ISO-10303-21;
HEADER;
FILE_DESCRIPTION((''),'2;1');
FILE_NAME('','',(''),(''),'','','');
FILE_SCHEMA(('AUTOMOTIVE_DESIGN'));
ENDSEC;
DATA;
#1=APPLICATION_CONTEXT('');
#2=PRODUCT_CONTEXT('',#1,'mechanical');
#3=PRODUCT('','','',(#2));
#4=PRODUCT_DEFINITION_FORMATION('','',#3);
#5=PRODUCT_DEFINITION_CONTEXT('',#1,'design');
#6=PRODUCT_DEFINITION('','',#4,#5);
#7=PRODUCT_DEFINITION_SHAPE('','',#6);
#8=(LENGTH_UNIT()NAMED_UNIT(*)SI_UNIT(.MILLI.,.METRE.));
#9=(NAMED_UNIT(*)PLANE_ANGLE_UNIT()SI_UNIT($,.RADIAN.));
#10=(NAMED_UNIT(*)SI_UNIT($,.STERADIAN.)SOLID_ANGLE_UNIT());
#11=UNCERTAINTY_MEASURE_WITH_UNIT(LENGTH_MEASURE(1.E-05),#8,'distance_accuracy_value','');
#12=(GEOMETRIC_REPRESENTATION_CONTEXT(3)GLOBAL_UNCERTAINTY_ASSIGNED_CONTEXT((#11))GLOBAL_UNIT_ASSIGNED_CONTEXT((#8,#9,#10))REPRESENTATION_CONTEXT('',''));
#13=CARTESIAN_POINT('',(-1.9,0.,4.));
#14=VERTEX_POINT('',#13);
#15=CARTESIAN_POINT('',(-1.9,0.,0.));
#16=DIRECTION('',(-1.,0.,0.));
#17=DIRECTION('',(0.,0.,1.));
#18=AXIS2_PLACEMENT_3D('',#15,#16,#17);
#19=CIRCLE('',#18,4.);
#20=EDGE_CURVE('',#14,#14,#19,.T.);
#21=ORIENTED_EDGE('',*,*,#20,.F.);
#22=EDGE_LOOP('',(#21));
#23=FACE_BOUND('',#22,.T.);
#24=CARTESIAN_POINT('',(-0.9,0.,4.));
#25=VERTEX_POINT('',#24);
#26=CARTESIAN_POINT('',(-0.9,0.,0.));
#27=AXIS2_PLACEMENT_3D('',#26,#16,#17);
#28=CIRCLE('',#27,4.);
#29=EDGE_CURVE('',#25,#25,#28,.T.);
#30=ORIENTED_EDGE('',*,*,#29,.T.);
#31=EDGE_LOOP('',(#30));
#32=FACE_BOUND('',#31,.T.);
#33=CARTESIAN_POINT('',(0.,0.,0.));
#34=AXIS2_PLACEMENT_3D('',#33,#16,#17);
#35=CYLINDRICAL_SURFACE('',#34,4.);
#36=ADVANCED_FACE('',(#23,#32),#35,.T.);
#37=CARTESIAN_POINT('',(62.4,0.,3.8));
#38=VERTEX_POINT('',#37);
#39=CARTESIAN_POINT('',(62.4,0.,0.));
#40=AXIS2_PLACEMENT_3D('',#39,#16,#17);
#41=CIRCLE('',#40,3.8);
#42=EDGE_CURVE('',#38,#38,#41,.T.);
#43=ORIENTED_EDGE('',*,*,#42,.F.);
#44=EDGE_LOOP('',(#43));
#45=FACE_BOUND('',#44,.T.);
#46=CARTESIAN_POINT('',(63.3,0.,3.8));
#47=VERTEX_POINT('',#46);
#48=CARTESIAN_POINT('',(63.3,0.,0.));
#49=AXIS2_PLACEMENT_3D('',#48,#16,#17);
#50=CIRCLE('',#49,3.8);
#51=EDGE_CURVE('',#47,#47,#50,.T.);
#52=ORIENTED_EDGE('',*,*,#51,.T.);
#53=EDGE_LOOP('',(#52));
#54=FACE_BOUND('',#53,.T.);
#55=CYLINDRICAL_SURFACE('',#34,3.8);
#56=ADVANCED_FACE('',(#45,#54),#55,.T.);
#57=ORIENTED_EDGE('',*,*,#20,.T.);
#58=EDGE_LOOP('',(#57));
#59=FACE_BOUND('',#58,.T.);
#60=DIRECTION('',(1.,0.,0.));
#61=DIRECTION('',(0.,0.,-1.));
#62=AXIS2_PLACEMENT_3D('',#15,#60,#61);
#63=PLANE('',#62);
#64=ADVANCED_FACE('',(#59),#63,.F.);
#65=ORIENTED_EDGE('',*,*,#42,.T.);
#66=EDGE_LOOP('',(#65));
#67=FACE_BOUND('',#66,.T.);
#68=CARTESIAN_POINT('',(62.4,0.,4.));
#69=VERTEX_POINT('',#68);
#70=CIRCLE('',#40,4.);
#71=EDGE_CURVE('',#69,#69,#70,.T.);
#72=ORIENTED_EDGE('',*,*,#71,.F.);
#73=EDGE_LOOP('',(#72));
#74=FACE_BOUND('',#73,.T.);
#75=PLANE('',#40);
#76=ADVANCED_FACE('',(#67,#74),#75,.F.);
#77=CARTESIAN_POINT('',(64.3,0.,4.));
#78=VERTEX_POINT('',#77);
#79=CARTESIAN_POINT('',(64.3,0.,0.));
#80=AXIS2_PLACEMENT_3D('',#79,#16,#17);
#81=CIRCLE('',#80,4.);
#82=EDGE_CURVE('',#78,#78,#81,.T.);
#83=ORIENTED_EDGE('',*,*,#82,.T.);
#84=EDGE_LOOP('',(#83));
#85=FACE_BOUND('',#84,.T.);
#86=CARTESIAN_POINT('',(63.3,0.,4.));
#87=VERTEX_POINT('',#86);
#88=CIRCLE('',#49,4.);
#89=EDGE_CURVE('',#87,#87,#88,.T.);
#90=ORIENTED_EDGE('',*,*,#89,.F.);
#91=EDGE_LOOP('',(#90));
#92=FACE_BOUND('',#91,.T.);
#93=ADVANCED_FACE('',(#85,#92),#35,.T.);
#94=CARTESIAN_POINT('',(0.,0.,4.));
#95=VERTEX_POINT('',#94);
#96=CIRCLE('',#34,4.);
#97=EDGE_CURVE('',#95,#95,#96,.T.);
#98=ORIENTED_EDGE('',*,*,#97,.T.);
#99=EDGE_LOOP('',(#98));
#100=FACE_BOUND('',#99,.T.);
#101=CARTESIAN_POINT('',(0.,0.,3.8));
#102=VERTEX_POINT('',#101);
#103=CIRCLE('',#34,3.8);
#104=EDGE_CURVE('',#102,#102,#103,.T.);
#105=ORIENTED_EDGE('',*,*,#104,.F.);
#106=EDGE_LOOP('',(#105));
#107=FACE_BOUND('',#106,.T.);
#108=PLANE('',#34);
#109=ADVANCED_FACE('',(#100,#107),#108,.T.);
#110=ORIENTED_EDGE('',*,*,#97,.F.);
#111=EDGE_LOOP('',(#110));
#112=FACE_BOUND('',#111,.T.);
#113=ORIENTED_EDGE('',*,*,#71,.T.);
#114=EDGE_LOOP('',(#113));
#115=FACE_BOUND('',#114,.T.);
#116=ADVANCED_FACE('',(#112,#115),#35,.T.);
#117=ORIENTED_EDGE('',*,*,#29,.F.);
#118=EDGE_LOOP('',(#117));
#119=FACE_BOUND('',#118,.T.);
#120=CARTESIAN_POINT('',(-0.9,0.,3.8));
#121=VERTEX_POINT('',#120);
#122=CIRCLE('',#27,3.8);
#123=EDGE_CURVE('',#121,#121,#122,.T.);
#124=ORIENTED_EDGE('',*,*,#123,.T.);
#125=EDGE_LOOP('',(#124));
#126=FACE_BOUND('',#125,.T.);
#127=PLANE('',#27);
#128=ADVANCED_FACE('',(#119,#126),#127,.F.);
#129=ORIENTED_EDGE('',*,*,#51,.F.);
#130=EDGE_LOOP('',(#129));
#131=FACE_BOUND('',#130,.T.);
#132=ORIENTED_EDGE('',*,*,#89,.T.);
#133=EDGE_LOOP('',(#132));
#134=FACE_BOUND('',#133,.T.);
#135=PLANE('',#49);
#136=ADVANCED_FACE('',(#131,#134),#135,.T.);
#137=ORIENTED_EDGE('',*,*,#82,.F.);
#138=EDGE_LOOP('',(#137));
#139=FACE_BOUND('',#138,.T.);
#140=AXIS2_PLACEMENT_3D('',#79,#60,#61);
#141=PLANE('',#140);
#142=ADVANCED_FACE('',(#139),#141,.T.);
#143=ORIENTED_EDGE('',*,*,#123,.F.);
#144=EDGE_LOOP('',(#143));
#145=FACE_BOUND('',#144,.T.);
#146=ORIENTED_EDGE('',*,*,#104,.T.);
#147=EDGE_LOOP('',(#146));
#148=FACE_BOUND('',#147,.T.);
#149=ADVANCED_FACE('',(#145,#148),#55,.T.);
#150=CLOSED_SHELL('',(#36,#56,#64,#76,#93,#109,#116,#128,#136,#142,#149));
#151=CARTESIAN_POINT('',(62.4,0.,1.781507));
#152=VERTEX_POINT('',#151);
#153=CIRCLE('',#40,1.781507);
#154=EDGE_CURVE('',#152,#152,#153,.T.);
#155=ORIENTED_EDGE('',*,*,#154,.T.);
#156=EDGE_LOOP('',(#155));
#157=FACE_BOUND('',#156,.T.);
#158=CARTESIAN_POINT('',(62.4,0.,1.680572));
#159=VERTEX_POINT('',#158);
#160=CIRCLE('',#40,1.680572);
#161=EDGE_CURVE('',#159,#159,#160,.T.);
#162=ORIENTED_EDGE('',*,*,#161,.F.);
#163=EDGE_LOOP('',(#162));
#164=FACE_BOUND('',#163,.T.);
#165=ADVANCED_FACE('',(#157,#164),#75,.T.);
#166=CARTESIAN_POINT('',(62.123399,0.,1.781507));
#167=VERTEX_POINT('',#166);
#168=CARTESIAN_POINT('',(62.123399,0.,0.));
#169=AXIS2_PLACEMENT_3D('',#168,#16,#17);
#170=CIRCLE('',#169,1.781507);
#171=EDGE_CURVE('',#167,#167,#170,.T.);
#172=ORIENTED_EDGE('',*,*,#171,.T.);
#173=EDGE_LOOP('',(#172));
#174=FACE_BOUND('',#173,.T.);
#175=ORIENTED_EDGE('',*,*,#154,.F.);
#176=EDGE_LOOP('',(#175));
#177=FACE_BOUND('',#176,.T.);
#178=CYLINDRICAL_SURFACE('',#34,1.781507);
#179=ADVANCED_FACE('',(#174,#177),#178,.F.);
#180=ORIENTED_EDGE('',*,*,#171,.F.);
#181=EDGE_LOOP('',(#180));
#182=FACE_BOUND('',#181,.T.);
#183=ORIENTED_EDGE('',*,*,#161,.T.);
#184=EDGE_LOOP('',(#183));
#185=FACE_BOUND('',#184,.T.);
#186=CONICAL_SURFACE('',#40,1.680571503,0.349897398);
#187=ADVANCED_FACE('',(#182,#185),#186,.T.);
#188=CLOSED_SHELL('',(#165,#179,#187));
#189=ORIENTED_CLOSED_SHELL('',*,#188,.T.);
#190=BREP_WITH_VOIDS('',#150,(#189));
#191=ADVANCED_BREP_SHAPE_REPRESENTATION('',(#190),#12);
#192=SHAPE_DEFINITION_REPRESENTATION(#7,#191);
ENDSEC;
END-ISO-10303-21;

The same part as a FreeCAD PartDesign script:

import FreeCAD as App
import Part
import Sketcher


def add_polygon(sketch, points):
    """Adds a closed chain of lines whose ends are joined by coincident constraints."""
    first, n = sketch.GeometryCount, len(points)
    for a, b in zip(points, points[1:] + points[:1]):
        sketch.addGeometry(Part.LineSegment(App.Vector(*a, 0), App.Vector(*b, 0)), False)
    for i in range(n):
        sketch.addConstraint(Sketcher.Constraint("Coincident", first + i, 2, first + (i + 1) % n, 1))

doc = App.newDocument("Part")
body = doc.addObject("PartDesign::Body", "Body")

# Sketch on XY plane
sketch1 = body.newObject("Sketcher::SketchObject", "Sketch")
sketch1.AttachmentSupport = (doc.getObject("XY_Plane"), [""])
sketch1.MapMode = "FlatFace"
add_polygon(sketch1, [(-1.9, 4), (-1.9, 0), (64.3, 0), (64.3, 4), (63.3, 4), (63.3, 3.8), (62.4, 3.8), (62.4, 4), (0, 4), (0, 3.8), (-0.9, 3.8), (-0.9, 4)])  # lines 0-11
add_polygon(sketch1, [(62.4, 1.78), (62.4, 1.68), (62.12, 1.78)])  # lines 12-14
sketch1.addConstraint([
    Sketcher.Constraint("Vertical", 0),
    Sketcher.Constraint("Horizontal", 1),
    Sketcher.Constraint("Vertical", 2),
    Sketcher.Constraint("Horizontal", 3),
    Sketcher.Constraint("Vertical", 4),
    Sketcher.Constraint("Horizontal", 5),
    Sketcher.Constraint("Vertical", 6),
    Sketcher.Constraint("Horizontal", 7),
    Sketcher.Constraint("Vertical", 8),
    Sketcher.Constraint("Horizontal", 9),
    Sketcher.Constraint("Vertical", 10),
    Sketcher.Constraint("Horizontal", 11),
    Sketcher.Constraint("Vertical", 12),
    Sketcher.Constraint("Horizontal", 14),
    Sketcher.Constraint("PointOnObject", 0, 2, -1),
    Sketcher.Constraint("PointOnObject", 7, 2, -2),
    Sketcher.Constraint("Horizontal", 3, 2, 6, 2),
    Sketcher.Constraint("Horizontal", 5, 2, 8, 2),
    Sketcher.Constraint("Horizontal", 7, 2, 10, 2),
    Sketcher.Constraint("Vertical", 6, 2, 12, 2),
    Sketcher.Constraint("Equal", 5, 9),
    Sketcher.Constraint("Equal", 3, 11),
    Sketcher.Constraint("DistanceX", 3, 2, 3, 1, 1.0),
    Sketcher.Constraint("DistanceY", 0, 2, 0, 1, 4.0),
    Sketcher.Constraint("DistanceX", 1, 1, 1, 2, 66.2),
    Sketcher.Constraint("DistanceX", 5, 2, 5, 1, 0.9),
    Sketcher.Constraint("DistanceY", 4, 2, 4, 1, 0.2),
    Sketcher.Constraint("DistanceX", 14, 1, 14, 2, 0.276601),
    Sketcher.Constraint("DistanceY", 12, 2, 12, 1, 0.100935),
    Sketcher.Constraint("DistanceY", -1, 1, 12, 2, 1.680572),
])
revolution = body.newObject("PartDesign::Revolution", "Revolution")
revolution.Profile = sketch1
revolution.ReferenceAxis = (sketch1, ["H_Axis"])
revolution.Angle = 360

doc.recompute()
